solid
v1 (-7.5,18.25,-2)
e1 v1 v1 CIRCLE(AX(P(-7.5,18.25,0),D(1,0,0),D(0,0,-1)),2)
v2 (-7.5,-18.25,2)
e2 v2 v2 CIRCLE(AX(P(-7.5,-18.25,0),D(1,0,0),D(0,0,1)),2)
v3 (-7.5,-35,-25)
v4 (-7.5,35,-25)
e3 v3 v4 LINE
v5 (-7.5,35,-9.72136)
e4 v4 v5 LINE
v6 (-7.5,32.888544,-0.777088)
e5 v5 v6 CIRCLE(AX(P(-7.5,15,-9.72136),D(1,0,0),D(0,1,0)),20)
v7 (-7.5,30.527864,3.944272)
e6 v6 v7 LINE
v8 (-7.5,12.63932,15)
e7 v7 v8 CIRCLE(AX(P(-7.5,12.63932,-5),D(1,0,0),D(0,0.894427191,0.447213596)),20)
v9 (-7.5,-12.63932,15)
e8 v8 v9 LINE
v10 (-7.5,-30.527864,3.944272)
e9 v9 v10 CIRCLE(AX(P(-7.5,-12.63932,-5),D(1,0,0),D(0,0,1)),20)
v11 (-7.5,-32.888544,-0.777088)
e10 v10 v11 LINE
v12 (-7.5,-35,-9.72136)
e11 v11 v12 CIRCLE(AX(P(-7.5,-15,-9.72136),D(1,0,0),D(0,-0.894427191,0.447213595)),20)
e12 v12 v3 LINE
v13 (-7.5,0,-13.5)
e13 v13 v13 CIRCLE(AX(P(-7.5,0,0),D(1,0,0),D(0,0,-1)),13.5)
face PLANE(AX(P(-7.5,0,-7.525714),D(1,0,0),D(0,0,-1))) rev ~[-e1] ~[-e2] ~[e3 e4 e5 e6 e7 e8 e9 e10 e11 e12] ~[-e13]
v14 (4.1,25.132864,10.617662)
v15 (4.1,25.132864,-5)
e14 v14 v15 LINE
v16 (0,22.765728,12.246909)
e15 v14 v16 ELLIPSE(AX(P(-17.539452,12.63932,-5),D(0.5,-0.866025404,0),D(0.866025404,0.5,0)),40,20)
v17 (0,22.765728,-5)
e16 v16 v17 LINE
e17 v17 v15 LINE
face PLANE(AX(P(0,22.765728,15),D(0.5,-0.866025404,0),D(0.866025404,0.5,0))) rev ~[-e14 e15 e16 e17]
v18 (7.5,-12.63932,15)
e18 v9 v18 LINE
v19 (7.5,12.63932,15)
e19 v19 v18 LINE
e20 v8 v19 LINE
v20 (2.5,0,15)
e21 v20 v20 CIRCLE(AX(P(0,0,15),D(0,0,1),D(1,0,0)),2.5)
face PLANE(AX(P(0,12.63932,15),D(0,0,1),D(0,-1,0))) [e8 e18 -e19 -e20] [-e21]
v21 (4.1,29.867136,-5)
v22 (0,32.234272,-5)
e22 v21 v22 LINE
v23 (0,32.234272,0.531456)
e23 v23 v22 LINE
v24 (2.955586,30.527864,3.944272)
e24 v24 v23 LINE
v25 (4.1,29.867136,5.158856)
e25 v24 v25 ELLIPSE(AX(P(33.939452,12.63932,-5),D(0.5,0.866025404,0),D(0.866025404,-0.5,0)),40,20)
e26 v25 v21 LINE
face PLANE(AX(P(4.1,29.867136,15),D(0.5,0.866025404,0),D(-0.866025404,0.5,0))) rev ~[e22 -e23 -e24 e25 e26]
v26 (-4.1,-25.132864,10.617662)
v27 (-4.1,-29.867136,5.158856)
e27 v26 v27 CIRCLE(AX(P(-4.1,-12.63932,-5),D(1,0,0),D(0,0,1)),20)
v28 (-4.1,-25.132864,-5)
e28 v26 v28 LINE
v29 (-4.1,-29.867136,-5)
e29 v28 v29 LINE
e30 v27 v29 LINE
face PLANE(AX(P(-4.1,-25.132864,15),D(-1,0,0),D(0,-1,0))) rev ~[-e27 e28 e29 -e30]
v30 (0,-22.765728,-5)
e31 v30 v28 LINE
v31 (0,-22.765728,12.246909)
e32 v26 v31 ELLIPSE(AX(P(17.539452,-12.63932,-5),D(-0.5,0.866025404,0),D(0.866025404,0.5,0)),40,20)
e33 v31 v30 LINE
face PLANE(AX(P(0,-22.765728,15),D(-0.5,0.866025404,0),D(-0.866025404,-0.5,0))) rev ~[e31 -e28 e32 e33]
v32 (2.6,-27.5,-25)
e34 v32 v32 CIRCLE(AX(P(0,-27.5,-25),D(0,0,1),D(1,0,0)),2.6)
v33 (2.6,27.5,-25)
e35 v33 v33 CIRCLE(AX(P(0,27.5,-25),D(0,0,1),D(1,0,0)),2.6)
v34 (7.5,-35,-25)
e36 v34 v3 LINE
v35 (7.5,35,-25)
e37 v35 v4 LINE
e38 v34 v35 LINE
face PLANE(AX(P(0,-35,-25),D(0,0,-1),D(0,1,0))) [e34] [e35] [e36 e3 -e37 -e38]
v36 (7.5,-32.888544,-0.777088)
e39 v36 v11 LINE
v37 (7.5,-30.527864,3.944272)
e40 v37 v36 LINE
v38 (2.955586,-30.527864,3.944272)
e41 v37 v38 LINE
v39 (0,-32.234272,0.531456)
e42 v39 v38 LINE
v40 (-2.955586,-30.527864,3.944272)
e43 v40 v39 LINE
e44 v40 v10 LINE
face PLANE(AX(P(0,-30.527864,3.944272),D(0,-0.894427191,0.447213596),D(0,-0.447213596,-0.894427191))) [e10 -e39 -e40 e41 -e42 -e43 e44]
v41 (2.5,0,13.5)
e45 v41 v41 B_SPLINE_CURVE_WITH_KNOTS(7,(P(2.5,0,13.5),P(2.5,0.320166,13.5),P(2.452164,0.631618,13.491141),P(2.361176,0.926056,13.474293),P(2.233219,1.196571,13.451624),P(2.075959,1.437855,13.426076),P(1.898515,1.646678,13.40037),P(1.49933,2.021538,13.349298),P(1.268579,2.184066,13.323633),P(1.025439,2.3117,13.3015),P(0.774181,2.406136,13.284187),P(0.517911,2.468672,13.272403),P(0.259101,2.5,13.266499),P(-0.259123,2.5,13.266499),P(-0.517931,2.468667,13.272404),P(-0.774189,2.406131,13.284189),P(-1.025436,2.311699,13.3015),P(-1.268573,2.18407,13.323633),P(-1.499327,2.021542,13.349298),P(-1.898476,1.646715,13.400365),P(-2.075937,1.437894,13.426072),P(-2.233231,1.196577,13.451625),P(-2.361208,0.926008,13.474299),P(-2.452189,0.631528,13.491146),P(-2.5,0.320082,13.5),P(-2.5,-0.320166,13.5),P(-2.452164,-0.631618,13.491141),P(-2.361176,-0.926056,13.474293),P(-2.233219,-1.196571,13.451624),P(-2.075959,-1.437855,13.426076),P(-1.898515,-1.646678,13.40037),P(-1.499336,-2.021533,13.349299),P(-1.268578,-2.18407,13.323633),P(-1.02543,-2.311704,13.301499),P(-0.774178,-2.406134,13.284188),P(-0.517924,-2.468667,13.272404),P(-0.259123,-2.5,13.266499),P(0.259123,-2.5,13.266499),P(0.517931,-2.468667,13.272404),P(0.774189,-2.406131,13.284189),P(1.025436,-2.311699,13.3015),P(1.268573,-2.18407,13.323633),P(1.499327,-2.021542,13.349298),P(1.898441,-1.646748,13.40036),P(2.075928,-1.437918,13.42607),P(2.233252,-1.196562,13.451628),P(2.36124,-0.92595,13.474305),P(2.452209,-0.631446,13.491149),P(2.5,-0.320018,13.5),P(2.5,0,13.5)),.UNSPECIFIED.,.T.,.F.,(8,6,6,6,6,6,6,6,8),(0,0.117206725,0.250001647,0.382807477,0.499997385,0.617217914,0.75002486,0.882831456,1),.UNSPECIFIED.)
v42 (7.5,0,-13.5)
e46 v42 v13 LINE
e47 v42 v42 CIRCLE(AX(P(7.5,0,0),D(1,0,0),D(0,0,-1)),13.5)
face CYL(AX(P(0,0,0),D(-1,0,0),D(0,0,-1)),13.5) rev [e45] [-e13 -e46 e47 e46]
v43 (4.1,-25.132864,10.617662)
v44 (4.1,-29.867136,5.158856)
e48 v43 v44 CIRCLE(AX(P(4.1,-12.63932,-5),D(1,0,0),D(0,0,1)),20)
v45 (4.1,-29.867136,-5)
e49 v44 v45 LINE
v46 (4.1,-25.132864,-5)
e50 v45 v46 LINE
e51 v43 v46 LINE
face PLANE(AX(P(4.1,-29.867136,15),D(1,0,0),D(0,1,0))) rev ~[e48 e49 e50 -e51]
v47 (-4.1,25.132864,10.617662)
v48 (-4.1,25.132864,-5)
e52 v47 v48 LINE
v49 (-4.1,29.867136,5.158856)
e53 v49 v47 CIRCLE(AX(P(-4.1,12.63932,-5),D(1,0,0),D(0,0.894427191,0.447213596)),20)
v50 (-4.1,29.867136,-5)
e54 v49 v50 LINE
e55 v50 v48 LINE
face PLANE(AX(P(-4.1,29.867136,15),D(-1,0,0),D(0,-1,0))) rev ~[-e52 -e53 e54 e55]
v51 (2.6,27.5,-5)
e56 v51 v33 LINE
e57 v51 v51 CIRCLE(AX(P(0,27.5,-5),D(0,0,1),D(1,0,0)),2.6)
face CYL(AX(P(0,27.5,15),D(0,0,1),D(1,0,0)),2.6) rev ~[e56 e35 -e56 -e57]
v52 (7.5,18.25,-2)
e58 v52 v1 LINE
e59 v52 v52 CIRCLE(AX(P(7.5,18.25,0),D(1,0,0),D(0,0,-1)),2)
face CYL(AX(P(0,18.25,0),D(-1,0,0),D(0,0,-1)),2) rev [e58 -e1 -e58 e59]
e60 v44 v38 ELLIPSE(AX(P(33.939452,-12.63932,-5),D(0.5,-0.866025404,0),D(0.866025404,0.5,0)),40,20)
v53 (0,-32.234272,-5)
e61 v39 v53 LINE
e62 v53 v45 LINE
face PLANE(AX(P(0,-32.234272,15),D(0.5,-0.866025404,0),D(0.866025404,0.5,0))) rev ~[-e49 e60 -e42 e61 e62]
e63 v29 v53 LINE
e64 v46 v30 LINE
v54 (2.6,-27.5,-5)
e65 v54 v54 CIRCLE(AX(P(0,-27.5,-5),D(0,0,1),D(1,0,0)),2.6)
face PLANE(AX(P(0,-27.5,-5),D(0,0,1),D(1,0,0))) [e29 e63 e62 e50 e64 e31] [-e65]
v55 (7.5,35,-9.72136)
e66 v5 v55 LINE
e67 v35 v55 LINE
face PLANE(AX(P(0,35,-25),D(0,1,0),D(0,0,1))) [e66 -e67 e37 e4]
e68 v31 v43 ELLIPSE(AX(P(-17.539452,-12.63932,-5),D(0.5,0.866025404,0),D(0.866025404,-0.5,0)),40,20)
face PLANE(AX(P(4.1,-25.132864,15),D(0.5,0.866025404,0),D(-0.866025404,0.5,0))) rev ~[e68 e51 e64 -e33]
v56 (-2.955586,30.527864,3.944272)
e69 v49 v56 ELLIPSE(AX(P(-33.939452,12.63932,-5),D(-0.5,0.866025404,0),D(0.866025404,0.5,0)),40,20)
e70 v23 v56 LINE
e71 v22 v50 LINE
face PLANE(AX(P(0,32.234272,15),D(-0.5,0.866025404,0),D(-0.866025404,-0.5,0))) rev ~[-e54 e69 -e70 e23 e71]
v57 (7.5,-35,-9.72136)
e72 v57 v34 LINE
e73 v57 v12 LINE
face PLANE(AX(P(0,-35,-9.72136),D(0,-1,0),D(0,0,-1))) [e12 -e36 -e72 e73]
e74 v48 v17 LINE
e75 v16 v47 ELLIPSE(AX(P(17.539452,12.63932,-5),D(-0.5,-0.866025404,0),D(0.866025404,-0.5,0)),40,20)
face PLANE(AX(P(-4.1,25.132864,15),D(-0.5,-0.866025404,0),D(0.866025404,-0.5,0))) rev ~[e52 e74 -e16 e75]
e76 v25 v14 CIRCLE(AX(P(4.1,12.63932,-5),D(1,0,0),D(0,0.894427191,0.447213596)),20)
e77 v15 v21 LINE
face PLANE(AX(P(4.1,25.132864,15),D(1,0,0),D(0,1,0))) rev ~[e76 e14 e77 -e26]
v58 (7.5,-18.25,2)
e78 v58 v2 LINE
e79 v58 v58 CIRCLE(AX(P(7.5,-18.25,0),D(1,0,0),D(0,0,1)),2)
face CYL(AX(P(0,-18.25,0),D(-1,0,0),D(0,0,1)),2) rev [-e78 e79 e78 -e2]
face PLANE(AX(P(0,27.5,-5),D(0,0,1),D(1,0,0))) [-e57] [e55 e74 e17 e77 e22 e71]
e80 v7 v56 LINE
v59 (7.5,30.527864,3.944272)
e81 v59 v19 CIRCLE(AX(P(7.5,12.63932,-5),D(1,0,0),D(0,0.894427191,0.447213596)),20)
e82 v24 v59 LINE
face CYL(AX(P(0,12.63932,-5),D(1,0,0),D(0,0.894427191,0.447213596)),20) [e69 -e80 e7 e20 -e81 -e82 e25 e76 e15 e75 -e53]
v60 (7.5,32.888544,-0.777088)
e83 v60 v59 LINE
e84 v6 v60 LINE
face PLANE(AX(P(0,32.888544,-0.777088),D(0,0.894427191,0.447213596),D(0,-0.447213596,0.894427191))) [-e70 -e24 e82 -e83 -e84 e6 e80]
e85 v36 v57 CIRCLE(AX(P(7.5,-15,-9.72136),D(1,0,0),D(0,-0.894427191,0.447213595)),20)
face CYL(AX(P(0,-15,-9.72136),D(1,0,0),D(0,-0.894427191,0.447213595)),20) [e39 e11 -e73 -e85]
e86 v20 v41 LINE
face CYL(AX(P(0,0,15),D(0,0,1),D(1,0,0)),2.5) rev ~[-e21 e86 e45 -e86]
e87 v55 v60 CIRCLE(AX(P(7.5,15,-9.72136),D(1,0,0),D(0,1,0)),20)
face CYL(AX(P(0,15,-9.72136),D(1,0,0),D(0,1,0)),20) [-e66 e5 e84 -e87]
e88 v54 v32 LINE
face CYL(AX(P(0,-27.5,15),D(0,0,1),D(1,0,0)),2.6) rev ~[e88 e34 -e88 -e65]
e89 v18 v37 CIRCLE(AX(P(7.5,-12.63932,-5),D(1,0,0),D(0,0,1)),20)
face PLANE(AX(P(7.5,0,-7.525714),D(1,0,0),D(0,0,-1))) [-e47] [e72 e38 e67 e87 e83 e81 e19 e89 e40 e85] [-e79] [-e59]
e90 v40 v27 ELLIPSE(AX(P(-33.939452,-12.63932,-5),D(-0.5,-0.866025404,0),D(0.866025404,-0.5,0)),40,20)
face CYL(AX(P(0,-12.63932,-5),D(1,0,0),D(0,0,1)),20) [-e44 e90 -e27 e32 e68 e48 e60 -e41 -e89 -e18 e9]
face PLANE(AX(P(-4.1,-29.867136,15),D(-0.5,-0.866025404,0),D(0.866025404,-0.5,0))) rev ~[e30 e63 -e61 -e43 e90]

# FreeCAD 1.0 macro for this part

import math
import FreeCAD as App
import Part
import Sketcher

V = App.Vector
Q = App.Units.Quantity

doc = App.newDocument("Part")
body = doc.addObject("PartDesign::Body", "Body")

# Sketch on YZ plane
sketch1 = body.newObject("Sketcher::SketchObject", "Sketch")
sketch1.AttachmentSupport = (doc.getObject("YZ_Plane"), [""])
sketch1.MapMode = "FlatFace"
sketch1.addGeometry([
    Part.LineSegment(V(35, -25, 0), V(35, -9.72136, 0)),  # 0
    Part.ArcOfCircle(Part.Circle(V(15, -9.72136, 0), V(0, 0, 1), 20), math.radians(0), math.radians(26.565051)),  # 1
    Part.LineSegment(V(32.888544, -0.777088, 0), V(30.527864, 3.944272, 0)),  # 2
    Part.ArcOfCircle(Part.Circle(V(12.63932, -5, 0), V(0, 0, 1), 20), math.radians(26.565051), math.radians(90)),  # 3
    Part.LineSegment(V(12.63932, 15, 0), V(-12.63932, 15, 0)),  # 4
    Part.ArcOfCircle(Part.Circle(V(-12.63932, -5, 0), V(0, 0, 1), 20), math.radians(90), math.radians(153.434949)),  # 5
    Part.LineSegment(V(-30.527864, 3.944272, 0), V(-32.888544, -0.777088, 0)),  # 6
    Part.ArcOfCircle(Part.Circle(V(-15, -9.72136, 0), V(0, 0, 1), 20), math.radians(153.434949), math.radians(180)),  # 7
    Part.LineSegment(V(-35, -9.72136, 0), V(-35, -25, 0)),  # 8
    Part.LineSegment(V(-35, -25, 0), V(35, -25, 0)),  # 9
    Part.Circle(V(-18.25, 0, 0), V(0, 0, 1), 2),  # 10
    Part.Circle(V(0, 0, 0), V(0, 0, 1), 13.5),  # 11
    Part.Circle(V(18.25, 0, 0), V(0, 0, 1), 2),  # 12
], False)
sketch1.addConstraint([
    Sketcher.Constraint("Tangent", 0, 2, 1, 1),
    Sketcher.Constraint("Tangent", 1, 2, 2, 1),
    Sketcher.Constraint("Tangent", 2, 2, 3, 1),
    Sketcher.Constraint("Tangent", 3, 2, 4, 1),
    Sketcher.Constraint("Tangent", 4, 2, 5, 1),
    Sketcher.Constraint("Tangent", 5, 2, 6, 1),
    Sketcher.Constraint("Tangent", 6, 2, 7, 1),
    Sketcher.Constraint("Tangent", 7, 2, 8, 1),
    Sketcher.Constraint("Coincident", 8, 2, 9, 1),
    Sketcher.Constraint("Coincident", 9, 2, 0, 1),
    Sketcher.Constraint("Vertical", 0),
    Sketcher.Constraint("Horizontal", 4),
    Sketcher.Constraint("Vertical", 8),
    Sketcher.Constraint("Horizontal", 9),
    Sketcher.Constraint("Coincident", 11, 3, -1, 1),
    Sketcher.Constraint("Equal", 1, 3),
    Sketcher.Constraint("Equal", 3, 5),
    Sketcher.Constraint("Equal", 5, 7),
    Sketcher.Constraint("Equal", 10, 12),
    Sketcher.Constraint("Symmetric", 10, 3, 12, 3, -1, 1),
    Sketcher.Constraint("Symmetric", 1, 3, 7, 3, -2),
    Sketcher.Constraint("PointOnObject", 10, 3, -1),
    Sketcher.Constraint("Horizontal", 2, 2, 5, 2),
    Sketcher.Constraint("Diameter", 10, Q("4 mm")),
    Sketcher.Constraint("Diameter", 11, Q("27 mm")),
    Sketcher.Constraint("Radius", 1, Q("20 mm")),
    Sketcher.Constraint("DistanceX", 9, 1, 9, 2, Q("70 mm")),
    Sketcher.Constraint("DistanceY", 3, 3, -1, 1, Q("5 mm")),
    Sketcher.Constraint("DistanceY", 8, 2, -1, 1, Q("25 mm")),
    Sketcher.Constraint("DistanceX", 10, 3, -1, 1, Q("18.25 mm")),
    Sketcher.Constraint("DistanceX", 4, 2, 4, 1, Q("25.27864 mm")),
    Sketcher.Constraint("DistanceY", 0, 1, 0, 2, Q("15.27864 mm")),
])
pad1 = body.newObject("PartDesign::Pad", "Pad")
pad1.Profile = sketch1
pad1.Length = 15
pad1.Midplane = True

# Sketch on XY plane
sketch2 = body.newObject("Sketcher::SketchObject", "Sketch001")
sketch2.AttachmentSupport = (doc.getObject("XY_Plane"), [""])
sketch2.MapMode = "FlatFace"
sketch2.AttachmentOffset = App.Placement(V(0, 0, 15), App.Rotation())
sketch2.addGeometry([
    Part.LineSegment(V(0, -22.765728, 0), V(-4.1, -25.132864, 0)),  # 0
    Part.LineSegment(V(-4.1, -25.132864, 0), V(-4.1, -29.867136, 0)),  # 1
    Part.LineSegment(V(-4.1, -29.867136, 0), V(0, -32.234272, 0)),  # 2
    Part.LineSegment(V(0, -32.234272, 0), V(4.1, -29.867136, 0)),  # 3
    Part.LineSegment(V(4.1, -29.867136, 0), V(4.1, -25.132864, 0)),  # 4
    Part.LineSegment(V(4.1, -25.132864, 0), V(0, -22.765728, 0)),  # 5
    Part.Circle(V(0, -27.5, 0), V(0, 0, 1), 2.6),  # 6
    Part.LineSegment(V(0, 32.234272, 0), V(-4.1, 29.867136, 0)),  # 7
    Part.LineSegment(V(-4.1, 29.867136, 0), V(-4.1, 25.132864, 0)),  # 8
    Part.LineSegment(V(-4.1, 25.132864, 0), V(0, 22.765728, 0)),  # 9
    Part.LineSegment(V(0, 22.765728, 0), V(4.1, 25.132864, 0)),  # 10
    Part.LineSegment(V(4.1, 25.132864, 0), V(4.1, 29.867136, 0)),  # 11
    Part.LineSegment(V(4.1, 29.867136, 0), V(0, 32.234272, 0)),  # 12
    Part.Circle(V(0, 27.5, 0), V(0, 0, 1), 2.6),  # 13
], False)
sketch2.addConstraint([
    Sketcher.Constraint("Coincident", 0, 2, 1, 1),
    Sketcher.Constraint("Coincident", 1, 2, 2, 1),
    Sketcher.Constraint("Coincident", 2, 2, 3, 1),
    Sketcher.Constraint("Coincident", 3, 2, 4, 1),
    Sketcher.Constraint("Coincident", 4, 2, 5, 1),
    Sketcher.Constraint("Coincident", 5, 2, 0, 1),
    Sketcher.Constraint("Coincident", 7, 2, 8, 1),
    Sketcher.Constraint("Coincident", 8, 2, 9, 1),
    Sketcher.Constraint("Coincident", 9, 2, 10, 1),
    Sketcher.Constraint("Coincident", 10, 2, 11, 1),
    Sketcher.Constraint("Coincident", 11, 2, 12, 1),
    Sketcher.Constraint("Coincident", 12, 2, 7, 1),
    Sketcher.Constraint("Vertical", 1),
    Sketcher.Constraint("Vertical", 4),
    Sketcher.Constraint("Vertical", 8),
    Sketcher.Constraint("Vertical", 11),
    Sketcher.Constraint("Equal", 6, 13),
    Sketcher.Constraint("Symmetric", 6, 3, 13, 3, -1, 1),
    Sketcher.Constraint("Symmetric", 3, 2, 7, 2, -1, 1),
    Sketcher.Constraint("Symmetric", 5, 2, 9, 2, -1, 1),
    Sketcher.Constraint("Symmetric", 0, 2, 10, 2, -1, 1),
    Sketcher.Constraint("Symmetric", 2, 2, 12, 2, -1, 1),
    Sketcher.Constraint("Symmetric", 1, 2, 3, 2, -2),
    Sketcher.Constraint("PointOnObject", 6, 3, -2),
    Sketcher.Constraint("PointOnObject", 2, 2, -2),
    Sketcher.Constraint("PointOnObject", 5, 2, -2),
    Sketcher.Constraint("Parallel", 0, 3),
    Sketcher.Constraint("Parallel", 2, 5),
    Sketcher.Constraint("Parallel", 5, 9),
    Sketcher.Constraint("Parallel", 9, 12),
    Sketcher.Constraint("Diameter", 6, Q("5.2 mm")),
    Sketcher.Constraint("Angle", 0, Q("-150 deg")),
    Sketcher.Constraint("DistanceY", 6, 3, 13, 3, Q("55 mm")),
    Sketcher.Constraint("DistanceY", 0, 2, 7, 2, Q("55 mm")),
    Sketcher.Constraint("DistanceX", 0, 2, -1, 1, Q("4.1 mm")),
    Sketcher.Constraint("DistanceY", 1, 2, 1, 1, Q("4.734272 mm")),
])
pocket1 = body.newObject("PartDesign::Pocket", "Pocket")
pocket1.Profile = sketch2
pocket1.Length = 20

# Sketch on XY plane
sketch3 = body.newObject("Sketcher::SketchObject", "Sketch002")
sketch3.AttachmentSupport = (doc.getObject("XY_Plane"), [""])
sketch3.MapMode = "FlatFace"
sketch3.AttachmentOffset = App.Placement(V(0, 0, 15), App.Rotation())
sketch3.addGeometry(Part.Circle(V(0, 0, 0), V(0, 0, 1), 2.5), False)
sketch3.addConstraint([
    Sketcher.Constraint("Coincident", 0, 3, -1, 1),
    Sketcher.Constraint("Diameter", 0, Q("5 mm")),
])
pocket2 = body.newObject("PartDesign::Pocket", "Pocket001")
pocket2.Profile = sketch3
pocket2.Length = 10

# Sketch on XY plane
sketch4 = body.newObject("Sketcher::SketchObject", "Sketch003")
sketch4.AttachmentSupport = (doc.getObject("XY_Plane"), [""])
sketch4.MapMode = "FlatFace"
sketch4.AttachmentOffset = App.Placement(V(0, 0, 15), App.Rotation())
sketch4.addGeometry([
    Part.Circle(V(0, 27.5, 0), V(0, 0, 1), 2.6),
    Part.Circle(V(0, -27.5, 0), V(0, 0, 1), 2.6),
], False)
sketch4.addConstraint([
    Sketcher.Constraint("Equal", 0, 1),
    Sketcher.Constraint("Symmetric", 0, 3, 1, 3, -1, 1),
    Sketcher.Constraint("PointOnObject", 0, 3, -2),
    Sketcher.Constraint("Diameter", 0, Q("5.2 mm")),
    Sketcher.Constraint("DistanceY", 1, 3, 0, 3, Q("55 mm")),
])
pocket3 = body.newObject("PartDesign::Pocket", "Pocket002")
pocket3.Profile = sketch4
pocket3.Type = "ThroughAll"

doc.recompute()
